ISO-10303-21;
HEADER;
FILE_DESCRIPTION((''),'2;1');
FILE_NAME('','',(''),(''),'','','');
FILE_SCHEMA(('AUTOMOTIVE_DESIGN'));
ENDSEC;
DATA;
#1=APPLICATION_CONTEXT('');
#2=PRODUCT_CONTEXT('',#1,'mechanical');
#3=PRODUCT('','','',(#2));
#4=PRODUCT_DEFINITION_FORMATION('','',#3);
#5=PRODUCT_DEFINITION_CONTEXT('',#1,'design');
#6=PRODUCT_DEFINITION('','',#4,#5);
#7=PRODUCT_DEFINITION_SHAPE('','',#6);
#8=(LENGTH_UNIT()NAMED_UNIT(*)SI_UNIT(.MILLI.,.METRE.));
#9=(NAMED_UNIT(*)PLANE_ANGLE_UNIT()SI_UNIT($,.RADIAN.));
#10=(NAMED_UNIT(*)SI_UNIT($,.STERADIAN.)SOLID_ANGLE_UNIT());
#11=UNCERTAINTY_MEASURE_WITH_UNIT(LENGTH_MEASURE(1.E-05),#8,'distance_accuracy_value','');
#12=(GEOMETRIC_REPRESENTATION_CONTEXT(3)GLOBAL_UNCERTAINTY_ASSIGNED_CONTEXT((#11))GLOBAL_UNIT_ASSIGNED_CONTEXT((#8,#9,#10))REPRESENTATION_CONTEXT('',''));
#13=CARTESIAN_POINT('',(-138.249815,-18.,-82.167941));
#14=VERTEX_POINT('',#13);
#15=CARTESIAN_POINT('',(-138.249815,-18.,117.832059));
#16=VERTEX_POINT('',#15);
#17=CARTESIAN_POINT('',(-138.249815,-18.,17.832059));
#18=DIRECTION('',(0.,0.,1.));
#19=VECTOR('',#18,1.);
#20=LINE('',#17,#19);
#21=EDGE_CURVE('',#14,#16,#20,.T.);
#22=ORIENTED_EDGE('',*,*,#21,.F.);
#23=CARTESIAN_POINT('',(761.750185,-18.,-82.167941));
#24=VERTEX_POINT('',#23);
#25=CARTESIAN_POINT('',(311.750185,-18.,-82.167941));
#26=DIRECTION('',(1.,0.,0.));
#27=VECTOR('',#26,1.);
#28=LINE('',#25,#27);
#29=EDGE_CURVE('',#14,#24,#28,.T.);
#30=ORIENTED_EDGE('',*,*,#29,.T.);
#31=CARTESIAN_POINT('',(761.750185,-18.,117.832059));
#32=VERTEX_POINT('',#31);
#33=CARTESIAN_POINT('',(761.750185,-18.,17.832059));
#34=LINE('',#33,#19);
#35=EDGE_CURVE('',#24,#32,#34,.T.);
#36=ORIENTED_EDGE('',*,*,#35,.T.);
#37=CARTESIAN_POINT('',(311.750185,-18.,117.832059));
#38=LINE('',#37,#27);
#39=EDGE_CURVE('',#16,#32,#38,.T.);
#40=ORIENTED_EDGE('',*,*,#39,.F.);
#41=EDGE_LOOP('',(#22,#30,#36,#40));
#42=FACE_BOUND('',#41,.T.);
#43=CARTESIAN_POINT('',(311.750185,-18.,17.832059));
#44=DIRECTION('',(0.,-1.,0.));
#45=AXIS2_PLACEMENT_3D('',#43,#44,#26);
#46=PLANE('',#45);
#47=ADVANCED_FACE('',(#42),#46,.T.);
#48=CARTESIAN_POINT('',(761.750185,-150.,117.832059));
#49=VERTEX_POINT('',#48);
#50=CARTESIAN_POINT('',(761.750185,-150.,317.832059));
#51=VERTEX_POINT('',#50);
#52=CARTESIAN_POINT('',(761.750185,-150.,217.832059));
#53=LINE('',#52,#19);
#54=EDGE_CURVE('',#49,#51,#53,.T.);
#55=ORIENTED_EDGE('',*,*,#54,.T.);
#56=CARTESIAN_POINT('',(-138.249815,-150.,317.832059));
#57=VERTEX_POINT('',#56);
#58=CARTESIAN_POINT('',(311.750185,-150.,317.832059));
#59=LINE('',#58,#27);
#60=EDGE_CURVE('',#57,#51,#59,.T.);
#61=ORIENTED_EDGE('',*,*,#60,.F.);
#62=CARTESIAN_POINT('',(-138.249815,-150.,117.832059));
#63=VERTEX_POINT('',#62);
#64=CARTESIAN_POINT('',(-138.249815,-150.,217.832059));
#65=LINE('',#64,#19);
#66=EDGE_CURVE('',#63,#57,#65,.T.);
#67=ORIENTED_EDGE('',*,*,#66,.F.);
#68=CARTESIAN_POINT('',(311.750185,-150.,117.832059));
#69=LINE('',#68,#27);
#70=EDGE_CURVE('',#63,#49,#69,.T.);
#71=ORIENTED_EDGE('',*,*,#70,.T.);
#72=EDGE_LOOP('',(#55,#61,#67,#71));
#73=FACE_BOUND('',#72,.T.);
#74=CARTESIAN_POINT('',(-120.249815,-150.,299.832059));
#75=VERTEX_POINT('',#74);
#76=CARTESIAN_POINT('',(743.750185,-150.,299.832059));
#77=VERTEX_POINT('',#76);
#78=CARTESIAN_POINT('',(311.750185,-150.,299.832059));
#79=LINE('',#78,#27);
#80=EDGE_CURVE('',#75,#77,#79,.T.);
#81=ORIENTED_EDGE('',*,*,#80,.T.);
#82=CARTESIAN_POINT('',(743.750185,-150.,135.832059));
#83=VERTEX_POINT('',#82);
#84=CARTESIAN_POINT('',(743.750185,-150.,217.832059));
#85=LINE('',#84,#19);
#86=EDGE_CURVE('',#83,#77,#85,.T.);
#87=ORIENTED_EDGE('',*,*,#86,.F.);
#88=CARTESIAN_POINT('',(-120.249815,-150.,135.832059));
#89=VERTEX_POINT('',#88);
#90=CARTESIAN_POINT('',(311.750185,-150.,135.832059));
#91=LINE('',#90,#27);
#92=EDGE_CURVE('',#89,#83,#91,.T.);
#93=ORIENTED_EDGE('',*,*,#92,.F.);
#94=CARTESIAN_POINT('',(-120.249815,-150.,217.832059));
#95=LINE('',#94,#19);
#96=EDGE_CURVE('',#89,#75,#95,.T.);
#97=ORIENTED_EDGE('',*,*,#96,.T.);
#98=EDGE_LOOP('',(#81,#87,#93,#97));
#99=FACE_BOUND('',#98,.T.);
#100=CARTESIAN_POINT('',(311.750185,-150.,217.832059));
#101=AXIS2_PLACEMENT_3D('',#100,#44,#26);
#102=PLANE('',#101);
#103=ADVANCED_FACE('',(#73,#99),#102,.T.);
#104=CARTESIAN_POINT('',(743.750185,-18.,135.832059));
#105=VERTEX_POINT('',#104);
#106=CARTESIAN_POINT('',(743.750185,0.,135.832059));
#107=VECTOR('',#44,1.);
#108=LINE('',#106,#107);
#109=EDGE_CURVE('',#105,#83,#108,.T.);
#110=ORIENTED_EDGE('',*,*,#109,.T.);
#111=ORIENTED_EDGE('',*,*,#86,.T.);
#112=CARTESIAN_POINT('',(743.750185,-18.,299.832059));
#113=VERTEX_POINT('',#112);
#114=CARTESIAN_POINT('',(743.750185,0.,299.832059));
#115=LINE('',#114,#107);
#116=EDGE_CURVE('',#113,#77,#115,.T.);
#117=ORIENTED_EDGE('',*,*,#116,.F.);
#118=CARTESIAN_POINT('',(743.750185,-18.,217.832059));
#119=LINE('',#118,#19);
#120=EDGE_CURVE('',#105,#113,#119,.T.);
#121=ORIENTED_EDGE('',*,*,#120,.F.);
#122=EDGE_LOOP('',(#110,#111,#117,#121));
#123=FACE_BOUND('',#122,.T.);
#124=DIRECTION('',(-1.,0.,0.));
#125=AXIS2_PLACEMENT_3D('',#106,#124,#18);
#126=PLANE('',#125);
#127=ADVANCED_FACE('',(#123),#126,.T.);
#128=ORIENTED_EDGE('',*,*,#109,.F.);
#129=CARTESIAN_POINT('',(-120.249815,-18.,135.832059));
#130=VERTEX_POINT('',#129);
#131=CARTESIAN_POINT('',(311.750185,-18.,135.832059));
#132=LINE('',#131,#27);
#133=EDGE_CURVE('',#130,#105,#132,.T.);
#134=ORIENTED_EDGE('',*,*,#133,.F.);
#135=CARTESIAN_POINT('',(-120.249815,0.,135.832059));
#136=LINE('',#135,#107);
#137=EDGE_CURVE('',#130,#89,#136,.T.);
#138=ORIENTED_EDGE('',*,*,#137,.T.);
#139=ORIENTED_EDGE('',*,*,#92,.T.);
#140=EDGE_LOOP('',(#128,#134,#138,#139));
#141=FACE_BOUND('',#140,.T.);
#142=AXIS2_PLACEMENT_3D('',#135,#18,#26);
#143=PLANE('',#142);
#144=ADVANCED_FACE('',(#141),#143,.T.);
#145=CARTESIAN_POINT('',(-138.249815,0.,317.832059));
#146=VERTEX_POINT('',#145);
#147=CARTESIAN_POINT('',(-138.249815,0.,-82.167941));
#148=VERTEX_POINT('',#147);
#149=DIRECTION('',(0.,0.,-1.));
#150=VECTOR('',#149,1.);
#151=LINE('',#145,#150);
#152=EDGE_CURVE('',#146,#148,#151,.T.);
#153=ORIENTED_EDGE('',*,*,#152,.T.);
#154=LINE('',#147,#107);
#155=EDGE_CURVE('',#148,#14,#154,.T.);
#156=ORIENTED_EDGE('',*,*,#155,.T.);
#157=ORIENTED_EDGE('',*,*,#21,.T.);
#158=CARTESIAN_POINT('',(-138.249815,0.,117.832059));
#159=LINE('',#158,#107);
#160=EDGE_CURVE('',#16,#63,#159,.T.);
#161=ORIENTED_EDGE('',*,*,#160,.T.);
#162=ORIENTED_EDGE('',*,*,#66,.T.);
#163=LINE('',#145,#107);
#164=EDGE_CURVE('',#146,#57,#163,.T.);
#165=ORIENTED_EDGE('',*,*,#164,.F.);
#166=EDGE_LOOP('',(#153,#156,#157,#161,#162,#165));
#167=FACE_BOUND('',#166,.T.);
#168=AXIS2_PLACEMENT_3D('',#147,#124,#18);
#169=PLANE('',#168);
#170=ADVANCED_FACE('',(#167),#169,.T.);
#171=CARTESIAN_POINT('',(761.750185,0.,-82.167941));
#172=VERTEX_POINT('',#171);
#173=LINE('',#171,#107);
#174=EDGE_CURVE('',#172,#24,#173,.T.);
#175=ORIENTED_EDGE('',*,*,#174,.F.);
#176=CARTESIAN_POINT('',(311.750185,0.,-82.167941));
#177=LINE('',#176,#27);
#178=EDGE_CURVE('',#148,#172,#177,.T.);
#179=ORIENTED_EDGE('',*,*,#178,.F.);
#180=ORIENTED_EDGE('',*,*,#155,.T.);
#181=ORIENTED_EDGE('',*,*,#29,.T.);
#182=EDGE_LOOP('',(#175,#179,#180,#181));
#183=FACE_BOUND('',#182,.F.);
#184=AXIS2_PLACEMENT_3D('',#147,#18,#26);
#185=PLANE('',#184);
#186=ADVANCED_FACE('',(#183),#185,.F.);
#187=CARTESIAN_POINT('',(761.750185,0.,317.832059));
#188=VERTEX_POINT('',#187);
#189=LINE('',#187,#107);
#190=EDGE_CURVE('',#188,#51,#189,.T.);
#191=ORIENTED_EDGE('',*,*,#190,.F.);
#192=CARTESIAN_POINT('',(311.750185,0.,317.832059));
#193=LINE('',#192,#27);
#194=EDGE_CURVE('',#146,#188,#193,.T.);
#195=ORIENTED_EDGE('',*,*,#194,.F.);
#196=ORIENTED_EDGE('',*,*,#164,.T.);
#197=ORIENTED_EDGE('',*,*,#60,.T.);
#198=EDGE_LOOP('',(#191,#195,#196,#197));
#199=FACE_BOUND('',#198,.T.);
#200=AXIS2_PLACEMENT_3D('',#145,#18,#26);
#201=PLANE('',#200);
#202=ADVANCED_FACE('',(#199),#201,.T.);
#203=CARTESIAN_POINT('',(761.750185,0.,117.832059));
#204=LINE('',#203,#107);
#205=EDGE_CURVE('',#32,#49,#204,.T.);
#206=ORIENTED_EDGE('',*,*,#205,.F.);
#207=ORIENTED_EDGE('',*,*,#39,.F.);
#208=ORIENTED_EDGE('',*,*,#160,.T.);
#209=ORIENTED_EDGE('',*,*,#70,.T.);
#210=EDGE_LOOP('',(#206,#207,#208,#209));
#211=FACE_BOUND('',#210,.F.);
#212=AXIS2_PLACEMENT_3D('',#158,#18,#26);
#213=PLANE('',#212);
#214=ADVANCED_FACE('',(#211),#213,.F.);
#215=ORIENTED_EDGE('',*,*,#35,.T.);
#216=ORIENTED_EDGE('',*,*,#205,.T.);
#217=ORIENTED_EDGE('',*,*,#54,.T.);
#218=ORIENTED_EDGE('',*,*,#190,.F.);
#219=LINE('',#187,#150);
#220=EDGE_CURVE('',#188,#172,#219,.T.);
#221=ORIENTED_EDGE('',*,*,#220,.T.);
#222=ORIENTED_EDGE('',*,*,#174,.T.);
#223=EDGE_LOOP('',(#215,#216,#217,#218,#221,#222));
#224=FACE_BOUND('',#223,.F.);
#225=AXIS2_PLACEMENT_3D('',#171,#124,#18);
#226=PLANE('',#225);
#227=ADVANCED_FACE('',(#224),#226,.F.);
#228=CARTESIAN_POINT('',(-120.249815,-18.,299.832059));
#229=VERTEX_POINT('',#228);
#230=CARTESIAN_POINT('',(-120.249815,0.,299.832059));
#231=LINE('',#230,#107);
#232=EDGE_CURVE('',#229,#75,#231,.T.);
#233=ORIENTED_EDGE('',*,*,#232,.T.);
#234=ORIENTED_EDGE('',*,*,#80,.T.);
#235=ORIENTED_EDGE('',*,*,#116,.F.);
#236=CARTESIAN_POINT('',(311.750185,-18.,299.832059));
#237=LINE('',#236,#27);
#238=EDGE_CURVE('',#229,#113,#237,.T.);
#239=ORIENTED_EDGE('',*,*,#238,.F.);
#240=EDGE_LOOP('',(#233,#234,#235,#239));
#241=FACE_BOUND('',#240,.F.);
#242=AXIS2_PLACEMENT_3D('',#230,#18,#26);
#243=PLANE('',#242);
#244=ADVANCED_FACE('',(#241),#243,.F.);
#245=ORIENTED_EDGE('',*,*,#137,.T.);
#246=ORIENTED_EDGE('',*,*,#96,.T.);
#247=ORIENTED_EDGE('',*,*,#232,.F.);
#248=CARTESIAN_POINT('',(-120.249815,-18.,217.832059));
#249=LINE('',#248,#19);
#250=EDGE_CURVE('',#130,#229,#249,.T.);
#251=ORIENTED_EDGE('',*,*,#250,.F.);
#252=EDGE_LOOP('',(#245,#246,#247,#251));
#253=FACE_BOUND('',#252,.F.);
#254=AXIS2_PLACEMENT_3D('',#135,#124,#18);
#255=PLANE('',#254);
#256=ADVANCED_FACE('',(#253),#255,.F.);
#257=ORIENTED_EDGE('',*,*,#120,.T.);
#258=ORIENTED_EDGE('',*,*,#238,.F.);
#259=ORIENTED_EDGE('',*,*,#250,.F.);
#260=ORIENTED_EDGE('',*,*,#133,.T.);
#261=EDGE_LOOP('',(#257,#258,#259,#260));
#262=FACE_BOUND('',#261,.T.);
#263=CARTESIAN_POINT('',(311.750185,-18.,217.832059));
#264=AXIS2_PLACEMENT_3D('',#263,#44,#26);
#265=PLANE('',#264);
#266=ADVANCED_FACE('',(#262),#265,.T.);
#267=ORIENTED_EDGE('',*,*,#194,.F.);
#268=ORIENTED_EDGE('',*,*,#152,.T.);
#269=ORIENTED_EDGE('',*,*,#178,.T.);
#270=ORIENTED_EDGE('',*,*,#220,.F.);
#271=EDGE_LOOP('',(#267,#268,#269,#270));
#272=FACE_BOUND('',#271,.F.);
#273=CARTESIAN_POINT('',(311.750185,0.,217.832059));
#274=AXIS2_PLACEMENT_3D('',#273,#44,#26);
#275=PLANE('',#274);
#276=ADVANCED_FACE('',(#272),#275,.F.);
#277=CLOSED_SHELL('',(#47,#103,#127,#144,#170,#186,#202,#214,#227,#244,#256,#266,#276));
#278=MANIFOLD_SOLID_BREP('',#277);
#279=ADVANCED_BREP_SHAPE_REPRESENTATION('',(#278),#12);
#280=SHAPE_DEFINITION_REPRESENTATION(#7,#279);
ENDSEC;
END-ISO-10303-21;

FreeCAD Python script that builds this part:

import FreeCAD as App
import Part
import Sketcher
from FreeCAD import Vector


def add_polygon(sketch, points):
    """Adds a closed chain of lines whose ends are joined by coincident constraints."""
    first, n = sketch.GeometryCount, len(points)
    for a, b in zip(points, points[1:] + points[:1]):
        sketch.addGeometry(Part.LineSegment(App.Vector(*a, 0), App.Vector(*b, 0)), False)
    for i in range(n):
        sketch.addConstraint(Sketcher.Constraint("Coincident", first + i, 2, first + (i + 1) % n, 1))

doc = App.newDocument("Part")
body = doc.addObject("PartDesign::Body", "Body")

sketch1 = body.newObject("Sketcher::SketchObject", "Sketch")
sketch1.AttachmentSupport = (doc.getObject("XZ_Plane"), [""])
sketch1.MapMode = "FlatFace"
add_polygon(sketch1, [(-138, 318), (-138, 118), (762, 118), (762, 318)])
add_polygon(sketch1, [(744, 136), (-120, 136), (-120, 300), (744, 300)])
sketch1.addConstraint([
    Sketcher.Constraint("Vertical", 0),
    Sketcher.Constraint("Horizontal", 1),
    Sketcher.Constraint("Vertical", 2),
    Sketcher.Constraint("Horizontal", 3),
    Sketcher.Constraint("Horizontal", 4),
    Sketcher.Constraint("Vertical", 5),
    Sketcher.Constraint("Horizontal", 6),
    Sketcher.Constraint("Vertical", 7),
    Sketcher.Constraint("DistanceX", 1, 1, 1, 2, 900.0),
    Sketcher.Constraint("DistanceX", 4, 2, 4, 1, 864.0),
    Sketcher.Constraint("DistanceY", 0, 2, 0, 1, 200.0),
    Sketcher.Constraint("DistanceY", 5, 1, 5, 2, 164.0),
    Sketcher.Constraint("DistanceX", 0, 2, 4, 2, 18.0),
    Sketcher.Constraint("DistanceY", 0, 2, 4, 2, 18.0),
    Sketcher.Constraint("DistanceY", -1, 1, 0, 2, 117.832059),
    Sketcher.Constraint("DistanceX", 0, 2, -1, 1, 138.249815),
])
pad1 = body.newObject("PartDesign::Pad", "Pad")
pad1.Profile = sketch1
pad1.Length = 150

sketch2 = body.newObject("Sketcher::SketchObject", "Sketch001")
sketch2.AttachmentSupport = (doc.getObject("XZ_Plane"), [""])
sketch2.MapMode = "FlatFace"
add_polygon(sketch2, [(-138, 118), (-138, -82), (762, -82), (762, 118)])
sketch2.addConstraint([
    Sketcher.Constraint("Vertical", 0),
    Sketcher.Constraint("Horizontal", 1),
    Sketcher.Constraint("Vertical", 2),
    Sketcher.Constraint("Horizontal", 3),
    Sketcher.Constraint("DistanceX", 1, 1, 1, 2, 900.0),
    Sketcher.Constraint("DistanceY", 0, 2, 0, 1, 200.0),
    Sketcher.Constraint("DistanceY", 0, 2, -1, 1, 82.167941),
    Sketcher.Constraint("DistanceX", 0, 2, -1, 1, 138.249815),
])
pad2 = body.newObject("PartDesign::Pad", "Pad001")
pad2.Profile = sketch2
pad2.Length = 18

sketch3 = body.newObject("Sketcher::SketchObject", "Sketch002")
sketch3.AttachmentSupport = (doc.getObject("XZ_Plane"), [""])
sketch3.MapMode = "FlatFace"
add_polygon(sketch3, [(-120, 300), (-120, 136), (744, 136), (744, 300)])
sketch3.addConstraint([
    Sketcher.Constraint("Vertical", 0),
    Sketcher.Constraint("Horizontal", 1),
    Sketcher.Constraint("Vertical", 2),
    Sketcher.Constraint("Horizontal", 3),
    Sketcher.Constraint("DistanceX", 1, 1, 1, 2, 864.0),
    Sketcher.Constraint("DistanceY", 0, 2, 0, 1, 164.0),
    Sketcher.Constraint("DistanceY", -1, 1, 0, 2, 135.832059),
    Sketcher.Constraint("DistanceX", 0, 2, -1, 1, 120.249815),
])
pad3 = body.newObject("PartDesign::Pad", "Pad002")
pad3.Profile = sketch3
pad3.Length = 18

doc.recompute()
